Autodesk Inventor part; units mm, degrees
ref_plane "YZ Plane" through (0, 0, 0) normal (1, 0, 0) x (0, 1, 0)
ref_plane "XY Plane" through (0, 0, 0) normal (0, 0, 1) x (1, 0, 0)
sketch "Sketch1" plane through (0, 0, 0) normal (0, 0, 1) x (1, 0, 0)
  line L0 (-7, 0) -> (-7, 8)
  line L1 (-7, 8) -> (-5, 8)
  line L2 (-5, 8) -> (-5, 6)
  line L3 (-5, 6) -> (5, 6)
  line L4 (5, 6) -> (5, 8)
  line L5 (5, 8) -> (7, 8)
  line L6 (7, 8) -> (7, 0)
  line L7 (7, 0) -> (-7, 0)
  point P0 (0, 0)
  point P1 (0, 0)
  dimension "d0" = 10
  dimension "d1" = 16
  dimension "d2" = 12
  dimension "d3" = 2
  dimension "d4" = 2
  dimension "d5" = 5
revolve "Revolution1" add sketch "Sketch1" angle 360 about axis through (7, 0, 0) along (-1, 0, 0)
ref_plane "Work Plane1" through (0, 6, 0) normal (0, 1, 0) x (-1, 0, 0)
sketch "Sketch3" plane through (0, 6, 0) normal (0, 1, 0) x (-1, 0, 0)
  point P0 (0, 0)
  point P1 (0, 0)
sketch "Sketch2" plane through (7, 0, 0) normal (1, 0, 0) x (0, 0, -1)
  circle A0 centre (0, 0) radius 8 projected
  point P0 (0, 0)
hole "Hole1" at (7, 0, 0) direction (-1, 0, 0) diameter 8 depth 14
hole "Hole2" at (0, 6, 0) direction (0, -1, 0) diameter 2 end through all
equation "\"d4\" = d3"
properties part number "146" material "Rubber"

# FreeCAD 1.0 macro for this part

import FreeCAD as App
import Part
import Sketcher
Q = App.Units.Quantity

doc = App.newDocument("Part")
body = doc.addObject("PartDesign::Body", "Body")

# Sketch on XY plane
sketch1 = body.newObject("Sketcher::SketchObject", "Sketch")
sketch1.AttachmentSupport = (doc.getObject("XY_Plane"), [""])
sketch1.MapMode = "FlatFace"
sketch1.addGeometry([
    Part.LineSegment(App.Vector(-7, 8, 0), App.Vector(-7, 0, 0)),  # 0
    Part.LineSegment(App.Vector(-7, 0, 0), App.Vector(7, 0, 0)),  # 1
    Part.LineSegment(App.Vector(7, 0, 0), App.Vector(7, 8, 0)),  # 2
    Part.LineSegment(App.Vector(7, 8, 0), App.Vector(5, 8, 0)),  # 3
    Part.LineSegment(App.Vector(5, 8, 0), App.Vector(5, 6, 0)),  # 4
    Part.LineSegment(App.Vector(5, 6, 0), App.Vector(-5, 6, 0)),  # 5
    Part.LineSegment(App.Vector(-5, 6, 0), App.Vector(-5, 8, 0)),  # 6
    Part.LineSegment(App.Vector(-5, 8, 0), App.Vector(-7, 8, 0)),  # 7
], False)
sketch1.addConstraint([
    Sketcher.Constraint("Coincident", 0, 2, 1, 1),
    Sketcher.Constraint("Coincident", 1, 2, 2, 1),
    Sketcher.Constraint("Coincident", 2, 2, 3, 1),
    Sketcher.Constraint("Coincident", 3, 2, 4, 1),
    Sketcher.Constraint("Coincident", 4, 2, 5, 1),
    Sketcher.Constraint("Coincident", 5, 2, 6, 1),
    Sketcher.Constraint("Coincident", 6, 2, 7, 1),
    Sketcher.Constraint("Coincident", 7, 2, 0, 1),
    Sketcher.Constraint("Vertical", 0),
    Sketcher.Constraint("Horizontal", 1),
    Sketcher.Constraint("Vertical", 2),
    Sketcher.Constraint("Horizontal", 3),
    Sketcher.Constraint("Vertical", 4),
    Sketcher.Constraint("Horizontal", 5),
    Sketcher.Constraint("Vertical", 6),
    Sketcher.Constraint("Horizontal", 7),
    Sketcher.Constraint("Symmetric", 0, 2, 1, 2, -1, 1),
    Sketcher.Constraint("Symmetric", 3, 2, 6, 2, -2),
    Sketcher.Constraint("Equal", 7, 4),
    Sketcher.Constraint("DistanceX", 3, 2, 3, 1, Q("2 mm")),
    Sketcher.Constraint("DistanceX", 5, 2, 5, 1, Q("10 mm")),
    Sketcher.Constraint("DistanceY", 0, 2, 0, 1, Q("8 mm")),
])
revolution = body.newObject("PartDesign::Revolution", "Revolution")
revolution.Profile = sketch1
revolution.ReferenceAxis = (sketch1, ["H_Axis"])
revolution.Angle = 360

# Sketch on YZ plane
sketch2 = body.newObject("Sketcher::SketchObject", "Sketch001")
sketch2.AttachmentSupport = (doc.getObject("YZ_Plane"), [""])
sketch2.MapMode = "FlatFace"
sketch2.AttachmentOffset = App.Placement(App.Vector(0, 0, 7), App.Rotation())
sketch2.addGeometry(Part.Circle(App.Vector(0, 0, 0), App.Vector(0, 0, 1), 4), False)
sketch2.addConstraint([
    Sketcher.Constraint("Coincident", 0, 3, -1, 1),
    Sketcher.Constraint("Diameter", 0, Q("8 mm")),
])
doc.recompute()
hole = body.newObject("PartDesign::Hole", "Hole")
hole.Profile = sketch2
hole.ThreadType = "None"
hole.Diameter = 8
hole.DepthType = "Dimension"
hole.Depth = 14
hole.DrillPoint = "Flat"

# Sketch on XZ plane
sketch3 = body.newObject("Sketcher::SketchObject", "Sketch002")
sketch3.AttachmentSupport = (doc.getObject("XZ_Plane"), [""])
sketch3.MapMode = "FlatFace"
sketch3.AttachmentOffset = App.Placement(App.Vector(0, 0, -6), App.Rotation())
sketch3.addGeometry(Part.Circle(App.Vector(0, 0, 0), App.Vector(0, 0, 1), 1), False)
sketch3.addConstraint([
    Sketcher.Constraint("Coincident", 0, 3, -1, 1),
    Sketcher.Constraint("Diameter", 0, Q("2 mm")),
])
doc.recompute()
hole2 = body.newObject("PartDesign::Hole", "Hole001")
hole2.Profile = sketch3
hole2.ThreadType = "None"
hole2.Diameter = 2
hole2.DepthType = "ThroughAll"
hole2.Reversed = True

doc.recompute()
